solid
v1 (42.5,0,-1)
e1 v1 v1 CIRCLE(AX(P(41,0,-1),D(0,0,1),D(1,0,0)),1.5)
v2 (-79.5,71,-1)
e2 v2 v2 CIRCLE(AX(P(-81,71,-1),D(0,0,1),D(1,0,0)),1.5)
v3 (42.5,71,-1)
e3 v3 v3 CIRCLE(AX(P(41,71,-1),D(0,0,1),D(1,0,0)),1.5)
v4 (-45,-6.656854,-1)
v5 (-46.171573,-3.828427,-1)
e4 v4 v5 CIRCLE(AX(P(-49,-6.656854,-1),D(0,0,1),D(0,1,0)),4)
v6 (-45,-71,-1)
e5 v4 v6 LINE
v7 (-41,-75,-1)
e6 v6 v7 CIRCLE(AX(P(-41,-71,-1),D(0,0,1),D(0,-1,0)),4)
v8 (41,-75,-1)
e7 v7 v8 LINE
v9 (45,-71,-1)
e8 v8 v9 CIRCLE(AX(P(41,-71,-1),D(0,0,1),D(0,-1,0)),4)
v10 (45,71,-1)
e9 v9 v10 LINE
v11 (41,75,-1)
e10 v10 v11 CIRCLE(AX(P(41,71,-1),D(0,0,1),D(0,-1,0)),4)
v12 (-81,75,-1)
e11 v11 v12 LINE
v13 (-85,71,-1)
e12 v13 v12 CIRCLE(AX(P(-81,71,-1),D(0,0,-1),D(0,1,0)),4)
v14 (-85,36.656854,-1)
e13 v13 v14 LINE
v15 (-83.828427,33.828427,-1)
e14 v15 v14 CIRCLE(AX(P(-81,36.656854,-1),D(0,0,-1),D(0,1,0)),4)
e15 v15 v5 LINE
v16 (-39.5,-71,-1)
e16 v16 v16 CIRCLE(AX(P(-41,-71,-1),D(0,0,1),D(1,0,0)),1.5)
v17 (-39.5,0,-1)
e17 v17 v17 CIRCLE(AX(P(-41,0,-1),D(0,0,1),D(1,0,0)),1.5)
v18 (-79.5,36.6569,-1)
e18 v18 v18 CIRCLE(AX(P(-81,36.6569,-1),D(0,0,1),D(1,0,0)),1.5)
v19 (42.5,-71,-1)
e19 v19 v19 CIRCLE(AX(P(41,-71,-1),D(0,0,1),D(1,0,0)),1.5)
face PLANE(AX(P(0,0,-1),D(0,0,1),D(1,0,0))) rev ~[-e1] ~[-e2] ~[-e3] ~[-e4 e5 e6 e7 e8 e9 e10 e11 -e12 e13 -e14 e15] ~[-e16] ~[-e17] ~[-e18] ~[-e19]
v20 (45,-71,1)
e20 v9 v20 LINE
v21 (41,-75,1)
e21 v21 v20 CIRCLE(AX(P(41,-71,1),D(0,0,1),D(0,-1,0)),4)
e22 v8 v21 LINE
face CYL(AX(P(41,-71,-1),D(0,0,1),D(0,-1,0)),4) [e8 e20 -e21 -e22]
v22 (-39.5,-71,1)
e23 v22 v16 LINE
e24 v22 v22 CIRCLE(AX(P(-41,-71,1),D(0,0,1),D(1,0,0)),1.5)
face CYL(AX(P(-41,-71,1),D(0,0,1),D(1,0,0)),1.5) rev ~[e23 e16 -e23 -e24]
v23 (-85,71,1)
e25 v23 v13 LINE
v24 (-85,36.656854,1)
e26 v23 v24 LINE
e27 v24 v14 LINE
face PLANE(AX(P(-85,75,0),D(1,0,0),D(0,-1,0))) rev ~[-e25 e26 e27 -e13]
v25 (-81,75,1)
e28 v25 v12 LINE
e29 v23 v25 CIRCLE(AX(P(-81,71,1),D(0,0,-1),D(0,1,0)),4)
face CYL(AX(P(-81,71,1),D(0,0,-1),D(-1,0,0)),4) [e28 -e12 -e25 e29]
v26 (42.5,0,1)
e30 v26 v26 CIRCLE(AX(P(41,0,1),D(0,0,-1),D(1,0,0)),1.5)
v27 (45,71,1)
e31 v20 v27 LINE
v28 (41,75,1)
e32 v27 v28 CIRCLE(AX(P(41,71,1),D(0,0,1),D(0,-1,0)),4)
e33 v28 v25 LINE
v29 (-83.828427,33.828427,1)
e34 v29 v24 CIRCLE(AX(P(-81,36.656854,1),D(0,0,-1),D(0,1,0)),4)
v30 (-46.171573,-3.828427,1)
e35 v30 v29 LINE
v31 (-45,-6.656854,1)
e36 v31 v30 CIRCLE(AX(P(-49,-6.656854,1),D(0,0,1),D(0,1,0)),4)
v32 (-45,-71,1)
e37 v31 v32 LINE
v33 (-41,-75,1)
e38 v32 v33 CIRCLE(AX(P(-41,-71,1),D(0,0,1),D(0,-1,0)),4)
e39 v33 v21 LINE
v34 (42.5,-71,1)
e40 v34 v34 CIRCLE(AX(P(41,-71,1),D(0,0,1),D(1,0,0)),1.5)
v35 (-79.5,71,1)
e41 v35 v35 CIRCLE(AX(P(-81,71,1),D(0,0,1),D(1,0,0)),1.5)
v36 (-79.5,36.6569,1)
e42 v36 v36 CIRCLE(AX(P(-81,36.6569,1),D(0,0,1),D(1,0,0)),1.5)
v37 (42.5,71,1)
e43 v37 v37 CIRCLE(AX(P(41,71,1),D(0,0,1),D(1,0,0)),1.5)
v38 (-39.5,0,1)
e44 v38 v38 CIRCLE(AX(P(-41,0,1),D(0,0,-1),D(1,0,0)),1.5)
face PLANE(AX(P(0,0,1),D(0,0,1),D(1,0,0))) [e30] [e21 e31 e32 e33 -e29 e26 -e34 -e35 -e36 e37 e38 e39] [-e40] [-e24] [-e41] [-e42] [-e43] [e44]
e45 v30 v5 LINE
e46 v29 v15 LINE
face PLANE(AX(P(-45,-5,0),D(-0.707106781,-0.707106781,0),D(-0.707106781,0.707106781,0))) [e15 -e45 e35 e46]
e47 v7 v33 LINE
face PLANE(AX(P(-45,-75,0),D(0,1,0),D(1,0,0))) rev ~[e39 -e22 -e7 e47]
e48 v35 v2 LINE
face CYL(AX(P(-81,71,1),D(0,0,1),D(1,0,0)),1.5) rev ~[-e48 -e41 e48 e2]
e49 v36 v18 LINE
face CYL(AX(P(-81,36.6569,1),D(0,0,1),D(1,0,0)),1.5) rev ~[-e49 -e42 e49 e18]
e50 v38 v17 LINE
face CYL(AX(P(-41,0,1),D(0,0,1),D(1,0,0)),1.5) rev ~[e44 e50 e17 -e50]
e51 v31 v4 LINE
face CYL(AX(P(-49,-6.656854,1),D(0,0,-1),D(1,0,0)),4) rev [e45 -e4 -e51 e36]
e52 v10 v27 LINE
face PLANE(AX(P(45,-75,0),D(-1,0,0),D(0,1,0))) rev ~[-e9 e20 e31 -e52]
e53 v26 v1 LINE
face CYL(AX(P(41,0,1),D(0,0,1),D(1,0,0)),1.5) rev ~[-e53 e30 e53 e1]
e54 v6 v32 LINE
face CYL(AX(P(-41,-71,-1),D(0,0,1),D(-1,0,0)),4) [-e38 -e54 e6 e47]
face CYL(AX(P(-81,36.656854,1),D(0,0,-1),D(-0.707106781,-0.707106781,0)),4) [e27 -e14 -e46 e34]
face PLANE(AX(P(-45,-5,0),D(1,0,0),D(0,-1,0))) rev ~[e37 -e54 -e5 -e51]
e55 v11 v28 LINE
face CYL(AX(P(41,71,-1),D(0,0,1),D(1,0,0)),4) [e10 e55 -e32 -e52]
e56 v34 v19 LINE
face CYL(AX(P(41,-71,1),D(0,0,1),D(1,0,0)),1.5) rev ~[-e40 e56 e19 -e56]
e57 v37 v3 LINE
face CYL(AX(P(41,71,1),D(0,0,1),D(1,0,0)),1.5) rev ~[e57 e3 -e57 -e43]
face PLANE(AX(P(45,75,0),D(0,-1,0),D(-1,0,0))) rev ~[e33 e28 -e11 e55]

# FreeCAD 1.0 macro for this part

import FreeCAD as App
import Part
import Sketcher
Q = App.Units.Quantity


def edges_at(feature, points):
    """Names of the edges that pass closest to the given points."""
    edges = feature.Shape.Edges
    near = lambda p: min(range(len(edges)), key=lambda i: edges[i].distToShape(Part.Vertex(*p))[0])
    return sorted({f"Edge{near(p) + 1}" for p in points})

doc = App.newDocument("Part")
body = doc.addObject("PartDesign::Body", "Body")

# Sketch on XY plane
sketch1 = body.newObject("Sketcher::SketchObject", "Sketch")
sketch1.AttachmentSupport = (doc.getObject("XY_Plane"), [""])
sketch1.MapMode = "FlatFace"
sketch1.addGeometry(Part.LineSegment(App.Vector(-45, -5, 0), App.Vector(-45, -75, 0)), False)
sketch1.addGeometry(Part.LineSegment(App.Vector(-45, -75, 0), App.Vector(45, -75, 0)), False)
sketch1.addGeometry(Part.LineSegment(App.Vector(45, -75, 0), App.Vector(45, 75, 0)), False)
sketch1.addGeometry(Part.LineSegment(App.Vector(45, 75, 0), App.Vector(-85, 75, 0)), False)
sketch1.addGeometry(Part.LineSegment(App.Vector(-85, 75, 0), App.Vector(-85, 35, 0)), False)
sketch1.addGeometry(Part.LineSegment(App.Vector(-85, 35, 0), App.Vector(-45, -5, 0)), False)
sketch1.addConstraint(Sketcher.Constraint("Coincident", 0, 2, 1, 1))
sketch1.addConstraint(Sketcher.Constraint("Coincident", 1, 2, 2, 1))
sketch1.addConstraint(Sketcher.Constraint("Coincident", 2, 2, 3, 1))
sketch1.addConstraint(Sketcher.Constraint("Coincident", 3, 2, 4, 1))
sketch1.addConstraint(Sketcher.Constraint("Coincident", 4, 2, 5, 1))
sketch1.addConstraint(Sketcher.Constraint("Coincident", 5, 2, 0, 1))
sketch1.addConstraint(Sketcher.Constraint("Vertical", 0))
sketch1.addConstraint(Sketcher.Constraint("Horizontal", 1))
sketch1.addConstraint(Sketcher.Constraint("Vertical", 2))
sketch1.addConstraint(Sketcher.Constraint("Horizontal", 3))
sketch1.addConstraint(Sketcher.Constraint("Vertical", 4))
sketch1.addConstraint(Sketcher.Constraint("Symmetric", 0, 2, 2, 2, -1, 1))
sketch1.addConstraint(Sketcher.Constraint("DistanceX", 1, 1, 1, 2, 90.0))
sketch1.addConstraint(Sketcher.Constraint("DistanceX", 3, 2, 3, 1, 130.0))
sketch1.addConstraint(Sketcher.Constraint("DistanceY", 2, 1, 2, 2, 150.0))
sketch1.addConstraint(Sketcher.Constraint("DistanceY", 4, 2, 4, 1, 40.0))
sketch1.addConstraint(Sketcher.Constraint("Angle", 5, Q("-45 deg")))
pad1 = body.newObject("PartDesign::Pad", "Pad")
pad1.Profile = sketch1
pad1.Length = 2
pad1.Midplane = True
doc.recompute()

fillet = body.newObject("PartDesign::Fillet", "Fillet")
fillet.Base = (pad1, edges_at(pad1, [
    (45, 75, 0),
    (45, -75, 0),
    (-45, -75, 0),
    (-45, -5, 0),
    (-85, 35, 0),
    (-85, 75, 0),
]))
fillet.Radius = 4

# Sketch on XY plane
sketch2 = body.newObject("Sketcher::SketchObject", "Sketch001")
sketch2.AttachmentSupport = (doc.getObject("XY_Plane"), [""])
sketch2.MapMode = "FlatFace"
sketch2.AttachmentOffset = App.Placement(App.Vector(0, 0, 1), App.Rotation())
sketch2.addGeometry(Part.Circle(App.Vector(-81, 36.7, 0), App.Vector(0, 0, 1), 1.5), False)
sketch2.addGeometry(Part.Circle(App.Vector(-41, 0, 0), App.Vector(0, 0, 1), 1.5), False)
sketch2.addGeometry(Part.Circle(App.Vector(41, 0, 0), App.Vector(0, 0, 1), 1.5), False)
sketch2.addGeometry(Part.Circle(App.Vector(41, -71, 0), App.Vector(0, 0, 1), 1.5), False)
sketch2.addGeometry(Part.Circle(App.Vector(-41, -71, 0), App.Vector(0, 0, 1), 1.5), False)
sketch2.addGeometry(Part.Circle(App.Vector(41, 71, 0), App.Vector(0, 0, 1), 1.5), False)
sketch2.addGeometry(Part.Circle(App.Vector(-81, 71, 0), App.Vector(0, 0, 1), 1.5), False)
sketch2.addConstraint(Sketcher.Constraint("Equal", 0, 1))
sketch2.addConstraint(Sketcher.Constraint("Equal", 1, 2))
sketch2.addConstraint(Sketcher.Constraint("Equal", 2, 3))
sketch2.addConstraint(Sketcher.Constraint("Equal", 3, 4))
sketch2.addConstraint(Sketcher.Constraint("Equal", 4, 5))
sketch2.addConstraint(Sketcher.Constraint("Equal", 5, 6))
sketch2.addConstraint(Sketcher.Constraint("Symmetric", 1, 3, 2, 3, -1, 1))
sketch2.addConstraint(Sketcher.Constraint("Symmetric", 4, 3, 5, 3, -1, 1))
sketch2.addConstraint(Sketcher.Constraint("Symmetric", 3, 3, 4, 3, -2))
sketch2.addConstraint(Sketcher.Constraint("PointOnObject", 1, 3, -1))
sketch2.addConstraint(Sketcher.Constraint("Horizontal", 5, 3, 6, 3))
sketch2.addConstraint(Sketcher.Constraint("Vertical", 2, 3, 3, 3))
sketch2.addConstraint(Sketcher.Constraint("Vertical", 0, 3, 6, 3))
sketch2.addConstraint(Sketcher.Constraint("Diameter", 0, 3.0))
sketch2.addConstraint(Sketcher.Constraint("DistanceX", 1, 3, -1, 1, 41.0))
sketch2.addConstraint(Sketcher.Constraint("DistanceX", 0, 3, -1, 1, 81.0))
sketch2.addConstraint(Sketcher.Constraint("DistanceY", 3, 3, -1, 1, 71.0))
sketch2.addConstraint(Sketcher.Constraint("DistanceY", -1, 1, 0, 3, 36.657))
pocket1 = body.newObject("PartDesign::Pocket", "Pocket")
pocket1.Profile = sketch2
pocket1.Type = "ThroughAll"

doc.recompute()
